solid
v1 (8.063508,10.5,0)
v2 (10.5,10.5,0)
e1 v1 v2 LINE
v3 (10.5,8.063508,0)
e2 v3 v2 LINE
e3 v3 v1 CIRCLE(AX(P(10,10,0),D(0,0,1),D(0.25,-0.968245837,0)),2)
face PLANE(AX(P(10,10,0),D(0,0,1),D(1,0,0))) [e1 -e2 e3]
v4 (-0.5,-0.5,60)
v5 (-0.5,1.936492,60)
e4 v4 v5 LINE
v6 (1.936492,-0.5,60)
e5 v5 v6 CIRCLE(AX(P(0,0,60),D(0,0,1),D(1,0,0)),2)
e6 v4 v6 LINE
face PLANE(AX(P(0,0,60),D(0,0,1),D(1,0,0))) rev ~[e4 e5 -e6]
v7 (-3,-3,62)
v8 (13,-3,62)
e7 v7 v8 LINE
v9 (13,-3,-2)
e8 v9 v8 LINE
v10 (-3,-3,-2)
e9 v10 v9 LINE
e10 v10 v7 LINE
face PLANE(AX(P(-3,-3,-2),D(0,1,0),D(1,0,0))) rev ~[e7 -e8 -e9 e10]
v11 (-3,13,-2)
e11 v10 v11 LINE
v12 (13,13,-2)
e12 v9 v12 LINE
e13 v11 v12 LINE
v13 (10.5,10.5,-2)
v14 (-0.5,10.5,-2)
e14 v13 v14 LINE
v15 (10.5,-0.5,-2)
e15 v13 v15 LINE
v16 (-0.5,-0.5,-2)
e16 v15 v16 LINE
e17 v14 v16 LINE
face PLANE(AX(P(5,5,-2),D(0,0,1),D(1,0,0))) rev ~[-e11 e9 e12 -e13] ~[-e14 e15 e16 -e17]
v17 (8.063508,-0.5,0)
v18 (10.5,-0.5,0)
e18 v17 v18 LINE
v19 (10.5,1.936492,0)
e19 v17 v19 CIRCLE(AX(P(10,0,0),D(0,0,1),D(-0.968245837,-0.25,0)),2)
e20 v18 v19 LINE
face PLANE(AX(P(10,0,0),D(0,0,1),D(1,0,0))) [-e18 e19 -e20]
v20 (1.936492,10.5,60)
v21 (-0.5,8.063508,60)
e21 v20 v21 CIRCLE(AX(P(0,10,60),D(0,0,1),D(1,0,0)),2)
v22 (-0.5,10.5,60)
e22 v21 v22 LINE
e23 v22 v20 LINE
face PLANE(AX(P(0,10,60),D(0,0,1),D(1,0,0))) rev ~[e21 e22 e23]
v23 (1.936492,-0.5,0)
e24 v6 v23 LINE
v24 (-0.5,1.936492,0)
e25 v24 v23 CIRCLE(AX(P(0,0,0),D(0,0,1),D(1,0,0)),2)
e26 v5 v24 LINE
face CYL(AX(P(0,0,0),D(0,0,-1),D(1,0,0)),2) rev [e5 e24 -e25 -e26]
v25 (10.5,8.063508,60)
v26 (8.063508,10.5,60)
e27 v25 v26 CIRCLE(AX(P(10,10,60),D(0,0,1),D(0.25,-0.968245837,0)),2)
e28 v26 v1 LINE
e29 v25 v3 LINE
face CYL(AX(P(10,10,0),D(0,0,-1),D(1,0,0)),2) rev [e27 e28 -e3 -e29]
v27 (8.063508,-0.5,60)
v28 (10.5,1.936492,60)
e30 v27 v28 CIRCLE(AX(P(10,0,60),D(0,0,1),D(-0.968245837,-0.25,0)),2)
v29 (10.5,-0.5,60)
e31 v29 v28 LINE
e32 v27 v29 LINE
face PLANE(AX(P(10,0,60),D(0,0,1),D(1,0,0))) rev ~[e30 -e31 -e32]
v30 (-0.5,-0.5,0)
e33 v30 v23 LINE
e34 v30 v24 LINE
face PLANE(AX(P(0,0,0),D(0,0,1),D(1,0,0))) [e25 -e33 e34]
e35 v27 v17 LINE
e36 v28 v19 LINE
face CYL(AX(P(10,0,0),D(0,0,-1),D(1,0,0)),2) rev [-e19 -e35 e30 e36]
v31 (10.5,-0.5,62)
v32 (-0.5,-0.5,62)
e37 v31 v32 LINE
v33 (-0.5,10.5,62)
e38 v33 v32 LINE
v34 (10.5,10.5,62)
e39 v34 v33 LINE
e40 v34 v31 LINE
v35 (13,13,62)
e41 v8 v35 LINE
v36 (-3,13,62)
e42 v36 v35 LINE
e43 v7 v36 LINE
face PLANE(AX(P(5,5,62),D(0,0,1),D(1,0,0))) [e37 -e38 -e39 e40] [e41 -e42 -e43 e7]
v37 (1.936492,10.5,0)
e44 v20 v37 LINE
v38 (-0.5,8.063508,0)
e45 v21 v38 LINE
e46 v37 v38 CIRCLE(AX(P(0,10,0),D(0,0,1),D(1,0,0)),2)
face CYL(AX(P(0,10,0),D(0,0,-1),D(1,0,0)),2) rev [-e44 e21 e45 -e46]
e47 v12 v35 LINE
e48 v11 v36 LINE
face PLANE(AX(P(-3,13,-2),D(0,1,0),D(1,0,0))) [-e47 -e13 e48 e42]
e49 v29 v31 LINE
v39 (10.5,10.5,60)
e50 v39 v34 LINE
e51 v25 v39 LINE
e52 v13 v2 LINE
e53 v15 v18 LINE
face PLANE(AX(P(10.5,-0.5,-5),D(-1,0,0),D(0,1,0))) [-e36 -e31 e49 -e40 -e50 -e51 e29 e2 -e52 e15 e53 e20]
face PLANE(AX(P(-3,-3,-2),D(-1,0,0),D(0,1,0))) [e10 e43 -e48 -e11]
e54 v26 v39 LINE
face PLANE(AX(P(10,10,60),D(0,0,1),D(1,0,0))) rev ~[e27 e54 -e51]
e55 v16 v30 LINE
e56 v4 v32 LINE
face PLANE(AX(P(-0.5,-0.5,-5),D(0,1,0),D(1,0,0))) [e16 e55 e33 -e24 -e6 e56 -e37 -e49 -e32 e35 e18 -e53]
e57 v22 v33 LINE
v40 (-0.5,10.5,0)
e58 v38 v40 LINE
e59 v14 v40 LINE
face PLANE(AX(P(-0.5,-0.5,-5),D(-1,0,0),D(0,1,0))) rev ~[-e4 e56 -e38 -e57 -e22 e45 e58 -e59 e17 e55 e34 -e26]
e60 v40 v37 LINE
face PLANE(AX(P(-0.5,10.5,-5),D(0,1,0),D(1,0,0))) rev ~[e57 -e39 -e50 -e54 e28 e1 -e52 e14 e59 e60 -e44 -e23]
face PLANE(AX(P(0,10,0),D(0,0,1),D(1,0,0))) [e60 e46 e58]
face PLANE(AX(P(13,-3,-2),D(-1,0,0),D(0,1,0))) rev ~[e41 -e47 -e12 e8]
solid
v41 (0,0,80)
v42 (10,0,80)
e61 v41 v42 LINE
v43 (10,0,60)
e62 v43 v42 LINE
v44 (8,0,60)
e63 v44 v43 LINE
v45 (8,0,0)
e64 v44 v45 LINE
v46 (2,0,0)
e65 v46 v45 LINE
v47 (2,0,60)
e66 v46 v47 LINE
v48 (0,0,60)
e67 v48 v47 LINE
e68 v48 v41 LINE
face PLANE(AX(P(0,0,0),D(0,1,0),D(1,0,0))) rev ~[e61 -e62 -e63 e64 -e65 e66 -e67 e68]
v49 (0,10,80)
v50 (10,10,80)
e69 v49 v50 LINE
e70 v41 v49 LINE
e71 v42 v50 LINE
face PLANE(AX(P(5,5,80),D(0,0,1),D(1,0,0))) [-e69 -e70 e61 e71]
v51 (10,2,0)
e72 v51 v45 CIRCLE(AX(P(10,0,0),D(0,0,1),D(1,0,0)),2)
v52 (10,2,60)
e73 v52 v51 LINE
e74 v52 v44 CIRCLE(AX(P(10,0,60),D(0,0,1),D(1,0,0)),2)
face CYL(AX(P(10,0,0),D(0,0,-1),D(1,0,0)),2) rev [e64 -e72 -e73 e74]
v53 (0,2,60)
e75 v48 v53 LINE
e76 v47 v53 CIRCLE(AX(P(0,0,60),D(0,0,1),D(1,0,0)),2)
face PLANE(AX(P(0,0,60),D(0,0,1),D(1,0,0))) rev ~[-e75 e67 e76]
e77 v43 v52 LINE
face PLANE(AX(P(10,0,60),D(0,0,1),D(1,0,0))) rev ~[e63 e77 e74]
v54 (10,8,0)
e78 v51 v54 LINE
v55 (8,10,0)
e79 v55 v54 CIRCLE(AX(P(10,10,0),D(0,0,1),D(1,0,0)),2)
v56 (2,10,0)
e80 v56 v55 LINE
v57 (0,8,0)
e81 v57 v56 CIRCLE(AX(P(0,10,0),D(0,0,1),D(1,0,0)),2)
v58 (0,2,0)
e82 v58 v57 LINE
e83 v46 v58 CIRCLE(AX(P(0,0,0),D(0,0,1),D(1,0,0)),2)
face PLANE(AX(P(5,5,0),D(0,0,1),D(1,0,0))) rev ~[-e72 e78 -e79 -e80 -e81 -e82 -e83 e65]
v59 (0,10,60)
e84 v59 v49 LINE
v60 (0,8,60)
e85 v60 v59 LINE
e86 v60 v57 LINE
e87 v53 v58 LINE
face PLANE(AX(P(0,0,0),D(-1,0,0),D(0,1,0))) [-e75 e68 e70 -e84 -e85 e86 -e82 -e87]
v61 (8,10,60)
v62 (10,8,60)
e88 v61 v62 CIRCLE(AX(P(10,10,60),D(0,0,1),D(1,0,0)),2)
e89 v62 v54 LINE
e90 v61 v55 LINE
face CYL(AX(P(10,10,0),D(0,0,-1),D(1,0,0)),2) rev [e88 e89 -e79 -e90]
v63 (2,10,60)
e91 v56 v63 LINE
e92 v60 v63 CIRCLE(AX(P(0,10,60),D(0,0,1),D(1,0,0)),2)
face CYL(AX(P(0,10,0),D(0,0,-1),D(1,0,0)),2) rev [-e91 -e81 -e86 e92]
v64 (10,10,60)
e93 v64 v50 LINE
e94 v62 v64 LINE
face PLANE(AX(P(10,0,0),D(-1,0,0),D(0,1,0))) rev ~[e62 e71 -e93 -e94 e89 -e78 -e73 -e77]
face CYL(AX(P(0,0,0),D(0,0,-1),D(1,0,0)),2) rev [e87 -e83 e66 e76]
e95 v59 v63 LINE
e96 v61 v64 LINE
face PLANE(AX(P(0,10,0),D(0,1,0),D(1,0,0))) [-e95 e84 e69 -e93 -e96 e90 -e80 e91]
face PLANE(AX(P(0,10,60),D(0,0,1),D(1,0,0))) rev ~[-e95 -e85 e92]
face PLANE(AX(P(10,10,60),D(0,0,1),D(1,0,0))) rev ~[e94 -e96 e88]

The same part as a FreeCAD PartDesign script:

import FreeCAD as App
import Part
import Sketcher
from FreeCAD import Vector


def add_polygon(sketch, points):
    """Adds a closed chain of lines whose ends are joined by coincident constraints."""
    first, n = sketch.GeometryCount, len(points)
    for a, b in zip(points, points[1:] + points[:1]):
        sketch.addGeometry(Part.LineSegment(App.Vector(*a, 0), App.Vector(*b, 0)), False)
    for i in range(n):
        sketch.addConstraint(Sketcher.Constraint("Coincident", first + i, 2, first + (i + 1) % n, 1))

doc = App.newDocument("Part")
body = doc.addObject("PartDesign::Body", "Body")

sketch1 = body.newObject("Sketcher::SketchObject", "Sketch")
sketch1.AttachmentSupport = (doc.getObject("XY_Plane"), [""])
sketch1.MapMode = "FlatFace"
sketch1.addGeometry(Part.Circle(Vector(0, 10, 0), Vector(0, 0, 1), 2), False)
sketch1.addConstraint([
    Sketcher.Constraint("PointOnObject", 0, 3, -2),
    Sketcher.Constraint("Diameter", 0, 4.0),
    Sketcher.Constraint("DistanceY", -1, 1, 0, 3, 10.0),
])
pad1 = body.newObject("PartDesign::Pad", "Pad")
pad1.Profile = sketch1
pad1.Length = 60
body2 = doc.addObject("PartDesign::Body", "Body001")

sketch2 = body2.newObject("Sketcher::SketchObject", "Sketch001")
sketch2.AttachmentSupport = (doc.getObject("XY_Plane001"), [""])
sketch2.MapMode = "FlatFace"
sketch2.addGeometry(Part.Circle(Vector(10, 10, 0), Vector(0, 0, 1), 2), False)
sketch2.addConstraint([
    Sketcher.Constraint("Diameter", 0, 4.0),
    Sketcher.Constraint("DistanceX", -1, 1, 0, 3, 10.0),
    Sketcher.Constraint("DistanceY", -1, 1, 0, 3, 10.0),
])
pad2 = body2.newObject("PartDesign::Pad", "Pad001")
pad2.Profile = sketch2
pad2.Length = 60
body3 = doc.addObject("PartDesign::Body", "Body002")

sketch3 = body3.newObject("Sketcher::SketchObject", "Sketch002")
sketch3.AttachmentSupport = (doc.getObject("XY_Plane002"), [""])
sketch3.MapMode = "FlatFace"
sketch3.addGeometry(Part.Circle(Vector(10, 0, 0), Vector(0, 0, 1), 2), False)
sketch3.addConstraint([
    Sketcher.Constraint("PointOnObject", 0, 3, -1),
    Sketcher.Constraint("Diameter", 0, 4.0),
    Sketcher.Constraint("DistanceX", -1, 1, 0, 3, 10.0),
])
pad3 = body3.newObject("PartDesign::Pad", "Pad002")
pad3.Profile = sketch3
pad3.Length = 60
body4 = doc.addObject("PartDesign::Body", "Body003")

sketch4 = body4.newObject("Sketcher::SketchObject", "Sketch003")
sketch4.AttachmentSupport = (doc.getObject("XY_Plane003"), [""])
sketch4.MapMode = "FlatFace"
sketch4.addGeometry(Part.Circle(Vector(0, 0, 0), Vector(0, 0, 1), 2), False)
sketch4.addConstraint([
    Sketcher.Constraint("Coincident", 0, 3, -1, 1),
    Sketcher.Constraint("Diameter", 0, 4.0),
])
pad4 = body4.newObject("PartDesign::Pad", "Pad003")
pad4.Profile = sketch4
pad4.Length = 60
body5 = doc.addObject("PartDesign::Body", "Body004")

sketch5 = body5.newObject("Sketcher::SketchObject", "Sketch004")
sketch5.AttachmentSupport = (doc.getObject("XY_Plane004"), [""])
sketch5.MapMode = "FlatFace"
add_polygon(sketch5, [(0, 10), (0, 0), (10, 0), (10, 10)])
sketch5.addConstraint([
    Sketcher.Constraint("Vertical", 0),
    Sketcher.Constraint("Horizontal", 1),
    Sketcher.Constraint("Vertical", 2),
    Sketcher.Constraint("Horizontal", 3),
    Sketcher.Constraint("Coincident", 0, 2, -1, 1),
    Sketcher.Constraint("Equal", 3, 0),
    Sketcher.Constraint("DistanceX", 1, 1, 1, 2, 10.0),
])
pad5 = body5.newObject("PartDesign::Pad", "Pad004")
pad5.Profile = sketch5
pad5.Length = 80
doc.recompute()

boolean = body5.newObject("PartDesign::Boolean", "Boolean")
boolean.Type = "Cut"
boolean.addObjects([body4])
doc.recompute()

boolean2 = body5.newObject("PartDesign::Boolean", "Boolean001")
boolean2.Type = "Cut"
boolean2.addObjects([body3])
doc.recompute()

boolean3 = body5.newObject("PartDesign::Boolean", "Boolean002")
boolean3.Type = "Cut"
boolean3.addObjects([body2])
doc.recompute()

boolean4 = body5.newObject("PartDesign::Boolean", "Boolean003")
boolean4.Type = "Cut"
boolean4.addObjects([body])
body6 = doc.addObject("PartDesign::Body", "Body005")

sketch6 = body6.newObject("Sketcher::SketchObject", "Sketch005")
sketch6.AttachmentSupport = (doc.getObject("XY_Plane005"), [""])
sketch6.MapMode = "FlatFace"
sketch6.addGeometry(Part.Circle(Vector(0, 0, 0), Vector(0, 0, 1), 2), False)
sketch6.addConstraint([
    Sketcher.Constraint("Coincident", 0, 3, -1, 1),
    Sketcher.Constraint("Diameter", 0, 4.0),
])
pad6 = body6.newObject("PartDesign::Pad", "Pad005")
pad6.Profile = sketch6
pad6.Length = 60
body7 = doc.addObject("PartDesign::Body", "Body006")

sketch7 = body7.newObject("Sketcher::SketchObject", "Sketch006")
sketch7.AttachmentSupport = (doc.getObject("XY_Plane006"), [""])
sketch7.MapMode = "FlatFace"
sketch7.addGeometry(Part.Circle(Vector(10, 10, 0), Vector(0, 0, 1), 2), False)
sketch7.addConstraint([
    Sketcher.Constraint("Diameter", 0, 4.0),
    Sketcher.Constraint("DistanceX", -1, 1, 0, 3, 10.0),
    Sketcher.Constraint("DistanceY", -1, 1, 0, 3, 10.0),
])
pad7 = body7.newObject("PartDesign::Pad", "Pad006")
pad7.Profile = sketch7
pad7.Length = 60
body8 = doc.addObject("PartDesign::Body", "Body007")

sketch8 = body8.newObject("Sketcher::SketchObject", "Sketch007")
sketch8.AttachmentSupport = (doc.getObject("XY_Plane007"), [""])
sketch8.MapMode = "FlatFace"
sketch8.addGeometry(Part.Circle(Vector(10, 0, 0), Vector(0, 0, 1), 2), False)
sketch8.addConstraint([
    Sketcher.Constraint("PointOnObject", 0, 3, -1),
    Sketcher.Constraint("Diameter", 0, 4.0),
    Sketcher.Constraint("DistanceX", -1, 1, 0, 3, 10.0),
])
pad8 = body8.newObject("PartDesign::Pad", "Pad007")
pad8.Profile = sketch8
pad8.Length = 60
body9 = doc.addObject("PartDesign::Body", "Body008")

sketch9 = body9.newObject("Sketcher::SketchObject", "Sketch008")
sketch9.AttachmentSupport = (doc.getObject("XY_Plane008"), [""])
sketch9.MapMode = "FlatFace"
sketch9.addGeometry(Part.Circle(Vector(0, 10, 0), Vector(0, 0, 1), 2), False)
sketch9.addConstraint([
    Sketcher.Constraint("PointOnObject", 0, 3, -2),
    Sketcher.Constraint("Diameter", 0, 4.0),
    Sketcher.Constraint("DistanceY", -1, 1, 0, 3, 10.0),
])
pad9 = body9.newObject("PartDesign::Pad", "Pad008")
pad9.Profile = sketch9
pad9.Length = 60
body10 = doc.addObject("PartDesign::Body", "Body009")

sketch10 = body10.newObject("Sketcher::SketchObject", "Sketch009")
sketch10.AttachmentSupport = (doc.getObject("XY_Plane009"), [""])
sketch10.MapMode = "FlatFace"
sketch10.AttachmentOffset = App.Placement(Vector(0, 0, -5), App.Rotation())
add_polygon(sketch10, [(0, 10), (0, 0), (10, 0), (10, 10)])
sketch10.addConstraint([
    Sketcher.Constraint("Vertical", 0),
    Sketcher.Constraint("Horizontal", 1),
    Sketcher.Constraint("Vertical", 2),
    Sketcher.Constraint("Horizontal", 3),
    Sketcher.Constraint("Equal", 3, 0),
    Sketcher.Constraint("DistanceX", 1, 1, 1, 2, 11.0),
    Sketcher.Constraint("DistanceX", 0, 2, -1, 1, 0.5),
    Sketcher.Constraint("DistanceY", 0, 2, -1, 1, 0.5),
])
pad10 = body10.newObject("PartDesign::Pad", "Pad009")
pad10.Profile = sketch10
pad10.Length = 80
body11 = doc.addObject("PartDesign::Body", "Body010")

sketch11 = body11.newObject("Sketcher::SketchObject", "Sketch010")
sketch11.AttachmentSupport = (doc.getObject("XY_Plane010"), [""])
sketch11.MapMode = "FlatFace"
sketch11.AttachmentOffset = App.Placement(Vector(0, 0, -2), App.Rotation())
add_polygon(sketch11, [(-3, 13), (-3, -3), (13, -3), (13, 13)])
sketch11.addConstraint([
    Sketcher.Constraint("Vertical", 0),
    Sketcher.Constraint("Horizontal", 1),
    Sketcher.Constraint("Vertical", 2),
    Sketcher.Constraint("Horizontal", 3),
    Sketcher.Constraint("Equal", 3, 0),
    Sketcher.Constraint("DistanceX", 1, 1, 1, 2, 16.0),
    Sketcher.Constraint("DistanceX", 0, 2, -1, 1, 3.0),
    Sketcher.Constraint("DistanceY", 0, 2, -1, 1, 3.0),
])
pad11 = body11.newObject("PartDesign::Pad", "Pad010")
pad11.Profile = sketch11
pad11.Length = 64
doc.recompute()

boolean5 = body11.newObject("PartDesign::Boolean", "Boolean004")
boolean5.Type = "Cut"
boolean5.addObjects([body10])
doc.recompute()

boolean6 = body11.newObject("PartDesign::Boolean", "Boolean005")
boolean6.Type = "Cut"
boolean6.addObjects([body9])
doc.recompute()

boolean7 = body11.newObject("PartDesign::Boolean", "Boolean006")
boolean7.Type = "Cut"
boolean7.addObjects([body8])
doc.recompute()

boolean8 = body11.newObject("PartDesign::Boolean", "Boolean007")
boolean8.Type = "Cut"
boolean8.addObjects([body7])
doc.recompute()

boolean9 = body11.newObject("PartDesign::Boolean", "Boolean008")
boolean9.Type = "Cut"
boolean9.addObjects([body6])

doc.recompute()
